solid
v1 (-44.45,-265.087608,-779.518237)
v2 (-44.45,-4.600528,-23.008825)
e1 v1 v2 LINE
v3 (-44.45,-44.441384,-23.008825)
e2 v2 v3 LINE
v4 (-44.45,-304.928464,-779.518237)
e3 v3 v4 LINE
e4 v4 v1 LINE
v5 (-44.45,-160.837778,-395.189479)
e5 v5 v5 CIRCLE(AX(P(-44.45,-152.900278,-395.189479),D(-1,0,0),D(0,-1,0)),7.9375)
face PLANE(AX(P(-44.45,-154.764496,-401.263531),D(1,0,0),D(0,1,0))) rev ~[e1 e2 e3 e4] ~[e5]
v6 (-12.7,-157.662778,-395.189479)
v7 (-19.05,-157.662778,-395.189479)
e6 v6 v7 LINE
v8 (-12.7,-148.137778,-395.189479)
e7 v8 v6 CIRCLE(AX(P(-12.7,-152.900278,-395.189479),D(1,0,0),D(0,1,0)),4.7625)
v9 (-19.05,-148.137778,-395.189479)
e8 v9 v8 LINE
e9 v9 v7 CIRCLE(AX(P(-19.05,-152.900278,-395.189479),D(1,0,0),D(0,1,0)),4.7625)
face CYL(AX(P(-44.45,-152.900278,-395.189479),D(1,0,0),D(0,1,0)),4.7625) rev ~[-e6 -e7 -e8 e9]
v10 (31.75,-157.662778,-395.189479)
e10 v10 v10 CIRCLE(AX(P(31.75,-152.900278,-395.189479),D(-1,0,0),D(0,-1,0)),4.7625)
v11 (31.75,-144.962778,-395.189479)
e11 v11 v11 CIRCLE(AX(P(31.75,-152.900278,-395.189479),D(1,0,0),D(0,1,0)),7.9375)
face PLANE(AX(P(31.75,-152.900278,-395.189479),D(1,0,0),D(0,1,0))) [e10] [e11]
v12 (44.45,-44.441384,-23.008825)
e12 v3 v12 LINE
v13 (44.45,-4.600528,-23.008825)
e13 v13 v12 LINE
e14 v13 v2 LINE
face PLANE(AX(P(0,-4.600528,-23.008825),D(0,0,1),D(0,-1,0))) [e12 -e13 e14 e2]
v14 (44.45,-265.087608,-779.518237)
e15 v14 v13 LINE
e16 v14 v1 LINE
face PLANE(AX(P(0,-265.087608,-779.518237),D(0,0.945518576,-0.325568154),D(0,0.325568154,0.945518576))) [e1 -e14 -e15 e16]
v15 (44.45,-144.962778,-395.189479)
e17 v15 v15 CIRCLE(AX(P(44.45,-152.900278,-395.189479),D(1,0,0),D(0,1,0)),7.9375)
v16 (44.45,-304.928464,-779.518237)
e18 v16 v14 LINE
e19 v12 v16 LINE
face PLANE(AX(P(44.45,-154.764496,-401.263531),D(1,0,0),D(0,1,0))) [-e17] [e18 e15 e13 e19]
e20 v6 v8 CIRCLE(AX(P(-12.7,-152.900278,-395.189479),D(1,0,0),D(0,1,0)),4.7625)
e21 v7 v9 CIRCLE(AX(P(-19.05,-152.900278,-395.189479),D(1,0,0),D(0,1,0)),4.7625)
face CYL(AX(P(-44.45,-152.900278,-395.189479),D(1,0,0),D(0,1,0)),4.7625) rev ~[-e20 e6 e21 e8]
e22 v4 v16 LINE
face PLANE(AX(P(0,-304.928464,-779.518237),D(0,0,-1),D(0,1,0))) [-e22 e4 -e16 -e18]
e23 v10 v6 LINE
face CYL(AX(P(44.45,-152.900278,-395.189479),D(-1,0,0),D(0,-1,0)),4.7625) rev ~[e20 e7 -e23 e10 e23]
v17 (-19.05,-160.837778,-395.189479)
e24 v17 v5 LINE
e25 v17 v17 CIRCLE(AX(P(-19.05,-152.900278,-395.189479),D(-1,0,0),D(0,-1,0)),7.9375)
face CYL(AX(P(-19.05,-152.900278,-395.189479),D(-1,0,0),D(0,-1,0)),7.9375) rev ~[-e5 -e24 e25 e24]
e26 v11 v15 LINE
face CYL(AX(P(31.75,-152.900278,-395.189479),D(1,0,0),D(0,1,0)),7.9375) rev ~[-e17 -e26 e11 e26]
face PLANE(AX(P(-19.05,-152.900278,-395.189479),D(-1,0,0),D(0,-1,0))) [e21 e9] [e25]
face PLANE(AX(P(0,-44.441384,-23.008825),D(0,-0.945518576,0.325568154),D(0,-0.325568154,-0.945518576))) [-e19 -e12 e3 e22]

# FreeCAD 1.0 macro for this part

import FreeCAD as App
import Part
import Sketcher
from FreeCAD import Vector
Q = App.Units.Quantity

doc = App.newDocument("Part")
body = doc.addObject("PartDesign::Body", "Body")

sketch1 = body.newObject("Sketcher::SketchObject", "Sketch")
sketch1.AttachmentSupport = (doc.getObject("YZ_Plane"), [""])
sketch1.MapMode = "FlatFace"
sketch1.addGeometry(Part.LineSegment(Vector(-5, -23, 0), Vector(-44, -23, 0)), False)
sketch1.addGeometry(Part.LineSegment(Vector(-44, -23, 0), Vector(-305, -780, 0)), False)
sketch1.addGeometry(Part.LineSegment(Vector(-305, -780, 0), Vector(-265, -780, 0)), False)
sketch1.addGeometry(Part.LineSegment(Vector(-265, -780, 0), Vector(-5, -23, 0)), False)
sketch1.addConstraint(Sketcher.Constraint("Coincident", 0, 2, 1, 1))
sketch1.addConstraint(Sketcher.Constraint("Coincident", 1, 2, 2, 1))
sketch1.addConstraint(Sketcher.Constraint("Coincident", 2, 2, 3, 1))
sketch1.addConstraint(Sketcher.Constraint("Coincident", 3, 2, 0, 1))
sketch1.addConstraint(Sketcher.Constraint("Horizontal", 0))
sketch1.addConstraint(Sketcher.Constraint("Horizontal", 2))
sketch1.addConstraint(Sketcher.Constraint("Parallel", 1, 3))
sketch1.addConstraint(Sketcher.Constraint("Angle", 1, Q("-109 deg")))
sketch1.addConstraint(Sketcher.Constraint("Distance", 1, Q("31.5 in")))
sketch1.addConstraint(Sketcher.Constraint("DistanceX", 0, 2, 0, 1, Q("39.840856 mm")))
sketch1.addConstraint(Sketcher.Constraint("DistanceX", 2, 2, -1, 1, Q("265.087608 mm")))
sketch1.addConstraint(Sketcher.Constraint("DistanceY", 0, 2, -1, 1, Q("23.008825 mm")))
pad1 = body.newObject("PartDesign::Pad", "Pad")
pad1.Profile = sketch1
pad1.Type = "TwoLengths"
pad1.Length = Q("1.75 in")
pad1.Length2 = Q("1.75 in")

sketch2 = body.newObject("Sketcher::SketchObject", "Sketch001")
sketch2.AttachmentSupport = (doc.getObject("YZ_Plane"), [""])
sketch2.MapMode = "FlatFace"
sketch2.AttachmentOffset = App.Placement(Vector(0, 0, -1.75 * 25.4), App.Rotation())
sketch2.addGeometry(Part.Circle(Vector(-152.900278, -395.189479, 0), Vector(0, 0, 1), 4.7625), False)
sketch2.addConstraint(Sketcher.Constraint("Diameter", 0, Q("0.375 in")))
sketch2.addConstraint(Sketcher.Constraint("DistanceY", 0, 3, -1, 1, Q("395.189479 mm")))
sketch2.addConstraint(Sketcher.Constraint("DistanceX", 0, 3, -1, 1, Q("152.900278 mm")))
doc.recompute()
hole = body.newObject("PartDesign::Hole", "Hole")
hole.Profile = sketch2
hole.ThreadType = "None"
hole.Diameter = Q("0.375 in")
hole.DepthType = "Dimension"
hole.Depth = Q("1.25 in")
hole.DrillPoint = "Flat"
hole.HoleCutType = "Counterbore"
hole.HoleCutDiameter = Q("0.625 in")
hole.HoleCutDepth = Q("1 in")
hole.Reversed = True

sketch3 = body.newObject("Sketcher::SketchObject", "Sketch002")
sketch3.AttachmentSupport = (doc.getObject("YZ_Plane"), [""])
sketch3.MapMode = "FlatFace"
sketch3.AttachmentOffset = App.Placement(Vector(0, 0, 1.75 * 25.4), App.Rotation())
sketch3.addGeometry(Part.Circle(Vector(-152.900278, -395.189479, 0), Vector(0, 0, 1), 4.7625), False)
sketch3.addConstraint(Sketcher.Constraint("Diameter", 0, Q("0.375 in")))
sketch3.addConstraint(Sketcher.Constraint("DistanceY", 0, 3, -1, 1, Q("395.189479 mm")))
sketch3.addConstraint(Sketcher.Constraint("DistanceX", 0, 3, -1, 1, Q("152.900278 mm")))
doc.recompute()
hole2 = body.newObject("PartDesign::Hole", "Hole001")
hole2.Profile = sketch3
hole2.ThreadType = "None"
hole2.Diameter = Q("0.375 in")
hole2.DepthType = "ThroughAll"
hole2.HoleCutType = "Counterbore"
hole2.HoleCutDiameter = Q("0.625 in")
hole2.HoleCutDepth = Q("0.5 in")

doc.recompute()
